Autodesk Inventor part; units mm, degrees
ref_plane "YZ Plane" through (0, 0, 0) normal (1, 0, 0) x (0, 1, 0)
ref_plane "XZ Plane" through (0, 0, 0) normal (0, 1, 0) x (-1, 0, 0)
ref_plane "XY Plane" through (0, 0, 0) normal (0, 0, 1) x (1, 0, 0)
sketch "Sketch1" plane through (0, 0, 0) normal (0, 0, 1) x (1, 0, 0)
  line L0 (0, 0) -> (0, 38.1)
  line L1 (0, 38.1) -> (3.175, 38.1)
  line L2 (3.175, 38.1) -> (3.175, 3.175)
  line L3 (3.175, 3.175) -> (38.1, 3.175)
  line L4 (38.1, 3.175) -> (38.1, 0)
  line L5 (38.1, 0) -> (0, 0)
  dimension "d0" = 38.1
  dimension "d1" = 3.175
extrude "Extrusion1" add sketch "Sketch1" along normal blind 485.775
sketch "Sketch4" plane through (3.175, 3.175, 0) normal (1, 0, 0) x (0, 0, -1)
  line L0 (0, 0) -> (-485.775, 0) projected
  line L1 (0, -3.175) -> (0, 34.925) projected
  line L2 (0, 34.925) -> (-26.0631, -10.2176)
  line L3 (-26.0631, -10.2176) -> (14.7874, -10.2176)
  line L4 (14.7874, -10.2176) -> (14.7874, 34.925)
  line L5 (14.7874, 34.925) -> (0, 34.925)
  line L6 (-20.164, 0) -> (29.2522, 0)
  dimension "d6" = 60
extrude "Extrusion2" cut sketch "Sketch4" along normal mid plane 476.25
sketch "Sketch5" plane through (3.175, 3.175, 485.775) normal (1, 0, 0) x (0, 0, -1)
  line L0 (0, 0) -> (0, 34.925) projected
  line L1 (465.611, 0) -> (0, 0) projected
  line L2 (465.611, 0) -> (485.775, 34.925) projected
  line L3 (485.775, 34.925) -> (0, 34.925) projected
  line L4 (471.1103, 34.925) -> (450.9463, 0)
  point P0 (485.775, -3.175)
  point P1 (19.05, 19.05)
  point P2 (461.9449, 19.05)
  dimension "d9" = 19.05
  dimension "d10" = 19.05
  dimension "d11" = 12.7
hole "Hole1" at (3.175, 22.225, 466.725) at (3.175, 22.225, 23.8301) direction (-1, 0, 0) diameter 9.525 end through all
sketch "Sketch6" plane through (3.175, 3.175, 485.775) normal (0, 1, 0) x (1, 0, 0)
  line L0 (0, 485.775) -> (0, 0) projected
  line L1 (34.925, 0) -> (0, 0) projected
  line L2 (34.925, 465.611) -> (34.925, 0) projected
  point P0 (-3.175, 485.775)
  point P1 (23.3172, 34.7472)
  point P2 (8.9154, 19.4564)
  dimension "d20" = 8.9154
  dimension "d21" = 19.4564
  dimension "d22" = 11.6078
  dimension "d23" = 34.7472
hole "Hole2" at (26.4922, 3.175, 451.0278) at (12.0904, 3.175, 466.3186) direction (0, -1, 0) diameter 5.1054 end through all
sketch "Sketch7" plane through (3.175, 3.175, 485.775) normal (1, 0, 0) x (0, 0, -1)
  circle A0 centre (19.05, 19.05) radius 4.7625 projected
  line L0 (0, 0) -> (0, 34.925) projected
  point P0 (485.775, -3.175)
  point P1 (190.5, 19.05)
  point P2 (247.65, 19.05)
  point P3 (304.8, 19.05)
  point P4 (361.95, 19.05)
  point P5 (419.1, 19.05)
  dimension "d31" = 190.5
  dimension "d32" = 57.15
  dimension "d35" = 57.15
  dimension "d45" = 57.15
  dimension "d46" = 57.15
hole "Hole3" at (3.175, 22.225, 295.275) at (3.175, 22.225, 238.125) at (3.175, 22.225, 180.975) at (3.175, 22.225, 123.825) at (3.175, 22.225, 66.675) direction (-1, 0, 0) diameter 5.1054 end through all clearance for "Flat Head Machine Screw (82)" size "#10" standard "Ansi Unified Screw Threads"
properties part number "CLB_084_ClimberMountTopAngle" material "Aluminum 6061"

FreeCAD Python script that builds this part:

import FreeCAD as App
import Part
import Sketcher
from FreeCAD import Vector
Q = App.Units.Quantity

doc = App.newDocument("Part")
body = doc.addObject("PartDesign::Body", "Body")

# Sketch on XY plane
sketch1 = doc.addObject("Sketcher::SketchObject", "Sketch")
body.addObject(sketch1)
sketch1.AttachmentSupport = (doc.XY_Plane, [""])
sketch1.MapMode = "FlatFace"
sketch1.addGeometry(Part.LineSegment(Vector(0, 38.1, 0), Vector(0, 0, 0)), False)
sketch1.addGeometry(Part.LineSegment(Vector(0, 0, 0), Vector(38.1, 0, 0)), False)
sketch1.addGeometry(Part.LineSegment(Vector(38.1, 0, 0), Vector(38.1, 3.175, 0)), False)
sketch1.addGeometry(Part.LineSegment(Vector(38.1, 3.175, 0), Vector(3.175, 3.175, 0)), False)
sketch1.addGeometry(Part.LineSegment(Vector(3.175, 3.175, 0), Vector(3.175, 38.1, 0)), False)
sketch1.addGeometry(Part.LineSegment(Vector(3.175, 38.1, 0), Vector(0, 38.1, 0)), False)
sketch1.addConstraint(Sketcher.Constraint("Coincident", 0, 2, 1, 1))
sketch1.addConstraint(Sketcher.Constraint("Coincident", 1, 2, 2, 1))
sketch1.addConstraint(Sketcher.Constraint("Coincident", 2, 2, 3, 1))
sketch1.addConstraint(Sketcher.Constraint("Coincident", 3, 2, 4, 1))
sketch1.addConstraint(Sketcher.Constraint("Coincident", 4, 2, 5, 1))
sketch1.addConstraint(Sketcher.Constraint("Coincident", 5, 2, 0, 1))
sketch1.addConstraint(Sketcher.Constraint("Vertical", 0))
sketch1.addConstraint(Sketcher.Constraint("Horizontal", 1))
sketch1.addConstraint(Sketcher.Constraint("Vertical", 2))
sketch1.addConstraint(Sketcher.Constraint("Horizontal", 3))
sketch1.addConstraint(Sketcher.Constraint("Vertical", 4))
sketch1.addConstraint(Sketcher.Constraint("Horizontal", 5))
sketch1.addConstraint(Sketcher.Constraint("Coincident", 0, 2, -1, 1))
sketch1.addConstraint(Sketcher.Constraint("Equal", 1, 0))
sketch1.addConstraint(Sketcher.Constraint("Equal", 5, 2))
sketch1.addConstraint(Sketcher.Constraint("DistanceX", 1, 1, 1, 2, Q("1.5 in")))
sketch1.addConstraint(Sketcher.Constraint("DistanceX", 5, 2, 5, 1, Q("0.125 in")))
pad1 = doc.addObject("PartDesign::Pad", "Pad")
body.addObject(pad1)
pad1.Profile = sketch1
pad1.Length = Q("19.125 in")

# Sketch on YZ plane
sketch2 = doc.addObject("Sketcher::SketchObject", "Sketch001")
body.addObject(sketch2)
sketch2.AttachmentSupport = (doc.YZ_Plane, [""])
sketch2.MapMode = "FlatFace"
sketch2.AttachmentOffset = App.Placement(Vector(0, 0, 0.125 * 25.4), App.Rotation())
sketch2.addGeometry(Part.LineSegment(Vector(-7.0426, -14.7874, 0), Vector(38.1, -14.7874, 0)), False)
sketch2.addGeometry(Part.LineSegment(Vector(38.1, -14.7874, 0), Vector(38.1, 0, 0)), False)
sketch2.addGeometry(Part.LineSegment(Vector(38.1, 0, 0), Vector(-7.0426, 26.0631, 0)), False)
sketch2.addGeometry(Part.LineSegment(Vector(-7.0426, 26.0631, 0), Vector(-7.0426, -14.7874, 0)), False)
sketch2.addConstraint(Sketcher.Constraint("Coincident", 0, 2, 1, 1))
sketch2.addConstraint(Sketcher.Constraint("Coincident", 1, 2, 2, 1))
sketch2.addConstraint(Sketcher.Constraint("Coincident", 2, 2, 3, 1))
sketch2.addConstraint(Sketcher.Constraint("Coincident", 3, 2, 0, 1))
sketch2.addConstraint(Sketcher.Constraint("Horizontal", 0))
sketch2.addConstraint(Sketcher.Constraint("Vertical", 1))
sketch2.addConstraint(Sketcher.Constraint("Vertical", 3))
sketch2.addConstraint(Sketcher.Constraint("PointOnObject", 1, 2, -1))
sketch2.addConstraint(Sketcher.Constraint("Angle", 2, Q("150 deg")))
sketch2.addConstraint(Sketcher.Constraint("DistanceX", -1, 1, 0, 2, Q("1.5 in")))
sketch2.addConstraint(Sketcher.Constraint("DistanceX", 0, 1, 0, 2, Q("45.1426 mm")))
sketch2.addConstraint(Sketcher.Constraint("DistanceY", 1, 1, 1, 2, Q("14.7874 mm")))
pocket1 = doc.addObject("PartDesign::Pocket", "Pocket")
body.addObject(pocket1)
pocket1.Profile = sketch2
pocket1.Length = Q("18.75 in")
pocket1.Midplane = True

# Sketch on YZ plane
sketch3 = doc.addObject("Sketcher::SketchObject", "Sketch002")
body.addObject(sketch3)
sketch3.AttachmentSupport = (doc.YZ_Plane, [""])
sketch3.MapMode = "FlatFace"
sketch3.AttachmentOffset = App.Placement(Vector(0, 0, 0.125 * 25.4), App.Rotation())
sketch3.addGeometry(Part.Circle(Vector(22.225, 466.725, 0), Vector(0, 0, 1), 4.7625), False)
sketch3.addGeometry(Part.Circle(Vector(22.225, 23.8301, 0), Vector(0, 0, 1), 4.7625), False)
sketch3.addConstraint(Sketcher.Constraint("Equal", 0, 1))
sketch3.addConstraint(Sketcher.Constraint("Vertical", 0, 3, 1, 3))
sketch3.addConstraint(Sketcher.Constraint("Diameter", 0, Q("0.375 in")))
sketch3.addConstraint(Sketcher.Constraint("DistanceX", -1, 1, 0, 3, Q("0.875 in")))
sketch3.addConstraint(Sketcher.Constraint("DistanceY", -1, 1, 0, 3, Q("18.375 in")))
sketch3.addConstraint(Sketcher.Constraint("DistanceY", -1, 1, 1, 3, Q("0.9382 in")))
doc.recompute()
hole = doc.addObject("PartDesign::Hole", "Hole")
body.addObject(hole)
hole.Profile = sketch3
hole.ThreadType = "None"
hole.Diameter = Q("0.375 in")
hole.DepthType = "ThroughAll"

# Sketch on XZ plane
sketch4 = doc.addObject("Sketcher::SketchObject", "Sketch003")
body.addObject(sketch4)
sketch4.AttachmentSupport = (doc.XZ_Plane, [""])
sketch4.MapMode = "FlatFace"
sketch4.AttachmentOffset = App.Placement(Vector(0, 0, -0.125 * 25.4), App.Rotation())
sketch4.addGeometry(Part.Circle(Vector(26.4922, 451.0278, 0), Vector(0, 0, 1), 2.5527), False)
sketch4.addGeometry(Part.Circle(Vector(12.0904, 466.3186, 0), Vector(0, 0, 1), 2.5527), False)
sketch4.addConstraint(Sketcher.Constraint("Equal", 0, 1))
sketch4.addConstraint(Sketcher.Constraint("Diameter", 0, Q("0.201 in")))
sketch4.addConstraint(Sketcher.Constraint("DistanceX", -1, 1, 0, 3, Q("1.043 in")))
sketch4.addConstraint(Sketcher.Constraint("DistanceY", -1, 1, 0, 3, Q("17.757 in")))
sketch4.addConstraint(Sketcher.Constraint("DistanceX", -1, 1, 1, 3, Q("0.476 in")))
sketch4.addConstraint(Sketcher.Constraint("DistanceY", -1, 1, 1, 3, Q("18.359 in")))
doc.recompute()
hole2 = doc.addObject("PartDesign::Hole", "Hole001")
body.addObject(hole2)
hole2.Profile = sketch4
hole2.ThreadType = "None"
hole2.Diameter = Q("0.201 in")
hole2.DepthType = "ThroughAll"
hole2.Reversed = True

# Sketch on YZ plane
sketch5 = doc.addObject("Sketcher::SketchObject", "Sketch004")
body.addObject(sketch5)
sketch5.AttachmentSupport = (doc.YZ_Plane, [""])
sketch5.MapMode = "FlatFace"
sketch5.AttachmentOffset = App.Placement(Vector(0, 0, 0.125 * 25.4), App.Rotation())
sketch5.addGeometry(Part.Circle(Vector(22.225, 295.275, 0), Vector(0, 0, 1), 2.5527), False)
sketch5.addGeometry(Part.Circle(Vector(22.225, 238.125, 0), Vector(0, 0, 1), 2.5527), False)
sketch5.addGeometry(Part.Circle(Vector(22.225, 180.975, 0), Vector(0, 0, 1), 2.5527), False)
sketch5.addGeometry(Part.Circle(Vector(22.225, 123.825, 0), Vector(0, 0, 1), 2.5527), False)
sketch5.addGeometry(Part.Circle(Vector(22.225, 66.675, 0), Vector(0, 0, 1), 2.5527), False)
sketch5.addConstraint(Sketcher.Constraint("Equal", 0, 1))
sketch5.addConstraint(Sketcher.Constraint("Equal", 1, 2))
sketch5.addConstraint(Sketcher.Constraint("Equal", 2, 3))
sketch5.addConstraint(Sketcher.Constraint("Equal", 3, 4))
sketch5.addConstraint(Sketcher.Constraint("Vertical", 0, 3, 1, 3))
sketch5.addConstraint(Sketcher.Constraint("Vertical", 1, 3, 2, 3))
sketch5.addConstraint(Sketcher.Constraint("Vertical", 2, 3, 3, 3))
sketch5.addConstraint(Sketcher.Constraint("Vertical", 3, 3, 4, 3))
sketch5.addConstraint(Sketcher.Constraint("Diameter", 0, Q("0.201 in")))
sketch5.addConstraint(Sketcher.Constraint("DistanceY", 4, 3, 0, 3, Q("9 in")))
sketch5.addConstraint(Sketcher.Constraint("DistanceY", 2, 3, 0, 3, Q("4.5 in")))
sketch5.addConstraint(Sketcher.Constraint("DistanceY", 3, 3, 1, 3, Q("4.5 in")))
sketch5.addConstraint(Sketcher.Constraint("DistanceY", 1, 3, 0, 3, Q("2.25 in")))
sketch5.addConstraint(Sketcher.Constraint("DistanceX", -1, 1, 0, 3, Q("0.875 in")))
sketch5.addConstraint(Sketcher.Constraint("DistanceY", -1, 1, 0, 3, Q("11.625 in")))
doc.recompute()
hole3 = doc.addObject("PartDesign::Hole", "Hole002")
body.addObject(hole3)
hole3.Profile = sketch5
hole3.ThreadType = "None"
hole3.Diameter = Q("0.201 in")
hole3.DepthType = "ThroughAll"

doc.recompute()
